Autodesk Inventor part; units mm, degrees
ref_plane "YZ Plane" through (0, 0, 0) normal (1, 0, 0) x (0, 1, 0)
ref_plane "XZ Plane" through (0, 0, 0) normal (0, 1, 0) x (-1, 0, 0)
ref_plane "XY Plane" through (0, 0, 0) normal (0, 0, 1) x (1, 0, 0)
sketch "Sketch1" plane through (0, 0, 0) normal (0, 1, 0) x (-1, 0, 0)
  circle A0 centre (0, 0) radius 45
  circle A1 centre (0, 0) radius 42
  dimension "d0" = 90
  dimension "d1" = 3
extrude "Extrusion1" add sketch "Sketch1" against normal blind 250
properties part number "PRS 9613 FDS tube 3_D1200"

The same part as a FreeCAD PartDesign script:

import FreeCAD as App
import Part
import Sketcher
from FreeCAD import Vector

doc = App.newDocument("Part")
body = doc.addObject("PartDesign::Body", "Body")

sketch1 = doc.addObject("Sketcher::SketchObject", "Sketch")
body.addObject(sketch1)
sketch1.AttachmentSupport = (doc.XZ_Plane, [""])
sketch1.MapMode = "FlatFace"
sketch1.addGeometry(Part.Circle(Vector(0, 0, 0), Vector(0, 0, 1), 45), False)
sketch1.addGeometry(Part.Circle(Vector(0, 0, 0), Vector(0, 0, 1), 42), False)
sketch1.addConstraint(Sketcher.Constraint("Coincident", 0, 3, -1, 1))
sketch1.addConstraint(Sketcher.Constraint("Coincident", 1, 3, -1, 1))
sketch1.addConstraint(Sketcher.Constraint("Diameter", 0, 90.0))
sketch1.addConstraint(Sketcher.Constraint("Diameter", 1, 84.0))
pad1 = doc.addObject("PartDesign::Pad", "Pad")
body.addObject(pad1)
pad1.Profile = sketch1
pad1.Length = 250

doc.recompute()
